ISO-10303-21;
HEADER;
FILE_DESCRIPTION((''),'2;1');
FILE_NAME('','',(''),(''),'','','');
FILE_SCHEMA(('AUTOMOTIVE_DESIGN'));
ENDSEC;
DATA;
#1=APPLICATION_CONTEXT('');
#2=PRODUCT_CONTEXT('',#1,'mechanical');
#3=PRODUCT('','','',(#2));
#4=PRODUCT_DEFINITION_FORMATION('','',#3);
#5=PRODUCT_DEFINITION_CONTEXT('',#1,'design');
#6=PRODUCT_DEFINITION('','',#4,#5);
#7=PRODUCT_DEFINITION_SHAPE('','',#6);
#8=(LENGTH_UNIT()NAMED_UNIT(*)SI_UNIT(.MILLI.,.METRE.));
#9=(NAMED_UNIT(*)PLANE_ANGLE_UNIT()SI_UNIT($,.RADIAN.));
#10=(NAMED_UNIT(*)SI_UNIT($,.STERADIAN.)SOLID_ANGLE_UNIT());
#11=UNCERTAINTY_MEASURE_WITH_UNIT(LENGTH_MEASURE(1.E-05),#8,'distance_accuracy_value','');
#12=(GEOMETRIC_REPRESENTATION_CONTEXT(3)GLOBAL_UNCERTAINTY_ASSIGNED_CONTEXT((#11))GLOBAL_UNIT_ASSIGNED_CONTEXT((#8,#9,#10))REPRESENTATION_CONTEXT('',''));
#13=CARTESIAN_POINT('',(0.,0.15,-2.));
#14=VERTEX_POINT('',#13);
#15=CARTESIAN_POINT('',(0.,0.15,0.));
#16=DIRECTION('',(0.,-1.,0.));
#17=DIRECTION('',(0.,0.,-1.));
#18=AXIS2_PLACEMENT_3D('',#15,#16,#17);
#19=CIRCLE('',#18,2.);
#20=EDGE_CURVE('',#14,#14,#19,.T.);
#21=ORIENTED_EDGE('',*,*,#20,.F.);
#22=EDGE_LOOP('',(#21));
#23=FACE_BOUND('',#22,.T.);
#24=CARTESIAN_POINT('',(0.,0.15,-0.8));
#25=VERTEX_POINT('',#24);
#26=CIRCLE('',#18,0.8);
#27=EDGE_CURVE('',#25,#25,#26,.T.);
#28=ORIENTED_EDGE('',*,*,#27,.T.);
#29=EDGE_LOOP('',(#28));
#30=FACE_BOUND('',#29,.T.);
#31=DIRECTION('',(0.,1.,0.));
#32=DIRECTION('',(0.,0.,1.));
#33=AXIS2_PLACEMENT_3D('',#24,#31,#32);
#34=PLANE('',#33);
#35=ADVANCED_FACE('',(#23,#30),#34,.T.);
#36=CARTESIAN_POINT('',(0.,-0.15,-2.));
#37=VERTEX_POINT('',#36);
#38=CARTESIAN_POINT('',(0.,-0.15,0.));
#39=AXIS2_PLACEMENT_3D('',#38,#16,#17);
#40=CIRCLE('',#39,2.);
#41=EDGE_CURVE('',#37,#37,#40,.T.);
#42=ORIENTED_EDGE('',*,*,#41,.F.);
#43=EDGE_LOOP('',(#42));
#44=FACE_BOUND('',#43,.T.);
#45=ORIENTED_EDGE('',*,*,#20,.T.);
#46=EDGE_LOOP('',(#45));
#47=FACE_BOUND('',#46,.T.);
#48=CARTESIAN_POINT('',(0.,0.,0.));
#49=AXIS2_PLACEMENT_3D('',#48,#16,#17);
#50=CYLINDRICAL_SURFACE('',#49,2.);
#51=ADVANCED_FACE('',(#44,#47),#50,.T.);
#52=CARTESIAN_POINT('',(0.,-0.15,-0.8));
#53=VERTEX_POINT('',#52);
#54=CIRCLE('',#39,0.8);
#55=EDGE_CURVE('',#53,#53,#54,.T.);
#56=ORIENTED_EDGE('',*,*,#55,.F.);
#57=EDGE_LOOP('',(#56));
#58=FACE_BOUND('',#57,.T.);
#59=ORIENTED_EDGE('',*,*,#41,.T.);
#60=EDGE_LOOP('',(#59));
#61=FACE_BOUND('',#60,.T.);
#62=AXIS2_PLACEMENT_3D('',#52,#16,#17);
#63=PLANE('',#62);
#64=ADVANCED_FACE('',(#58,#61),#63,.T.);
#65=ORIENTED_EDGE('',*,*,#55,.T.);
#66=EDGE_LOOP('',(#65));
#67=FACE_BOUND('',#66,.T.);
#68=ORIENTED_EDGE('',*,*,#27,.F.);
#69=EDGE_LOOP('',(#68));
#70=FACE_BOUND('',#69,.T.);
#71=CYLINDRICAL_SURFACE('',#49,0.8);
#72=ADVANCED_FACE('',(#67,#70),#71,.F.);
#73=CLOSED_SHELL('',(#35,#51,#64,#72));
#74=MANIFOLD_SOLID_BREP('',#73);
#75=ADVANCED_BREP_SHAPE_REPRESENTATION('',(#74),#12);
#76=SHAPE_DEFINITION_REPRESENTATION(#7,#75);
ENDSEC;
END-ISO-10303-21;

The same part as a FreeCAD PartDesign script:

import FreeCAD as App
import Part
import Sketcher

V = App.Vector
Q = App.Units.Quantity


def add_polygon(sketch, points):
    """Adds a closed chain of lines whose ends are joined by coincident constraints."""
    first, n = sketch.GeometryCount, len(points)
    for a, b in zip(points, points[1:] + points[:1]):
        sketch.addGeometry(Part.LineSegment(App.Vector(*a, 0), App.Vector(*b, 0)), False)
    for i in range(n):
        sketch.addConstraint(Sketcher.Constraint("Coincident", first + i, 2, first + (i + 1) % n, 1))

doc = App.newDocument("Part")
params = doc.addObject("Spreadsheet::Sheet", "Params")
for row, (alias, value) in enumerate([
    ("sketch1_width", "0.3 mm"),
    ("sketch1_height", "1.2 mm"),
    ("revolution_angle", "360 deg"),
], start=1):
    params.set(f"A{row}", alias)
    params.set(f"B{row}", "=" + value)
    params.setAlias(f"B{row}", alias)

body = doc.addObject("PartDesign::Body", "Body")

# Sketch on YZ plane
sketch1 = doc.addObject("Sketcher::SketchObject", "Sketch")
body.addObject(sketch1)
sketch1.AttachmentSupport = (doc.YZ_Plane, [""])
sketch1.MapMode = "FlatFace"
add_polygon(sketch1, [(0.15, -0.8), (-0.15, -0.8), (-0.15, -2), (0.15, -2)])  # lines 0-3
sketch1.addConstraint(Sketcher.Constraint("Horizontal", 0))
sketch1.addConstraint(Sketcher.Constraint("Vertical", 1))
sketch1.addConstraint(Sketcher.Constraint("Horizontal", 2))
sketch1.addConstraint(Sketcher.Constraint("Vertical", 3))
sketch1.addConstraint(Sketcher.Constraint("DistanceX", 0, 2, 0, 1, Q("0.3 mm")))
sketch1.addConstraint(Sketcher.Constraint("DistanceY", 1, 2, 1, 1, Q("1.2 mm")))
sketch1.addConstraint(Sketcher.Constraint("DistanceY", 1, 2, -1, 1, Q("2 mm")))
sketch1.addConstraint(Sketcher.Constraint("DistanceX", 0, 2, -1, 1, Q("0.15 mm")))
sketch1.setExpression("Constraints[8]", "Params.sketch1_width")
sketch1.setExpression("Constraints[9]", "Params.sketch1_height")
revolution = doc.addObject("PartDesign::Revolution", "Revolution")
body.addObject(revolution)
revolution.Profile = sketch1
revolution.ReferenceAxis = (sketch1, ["H_Axis"])
revolution.setExpression("Angle", "Params.revolution_angle")

doc.recompute()
